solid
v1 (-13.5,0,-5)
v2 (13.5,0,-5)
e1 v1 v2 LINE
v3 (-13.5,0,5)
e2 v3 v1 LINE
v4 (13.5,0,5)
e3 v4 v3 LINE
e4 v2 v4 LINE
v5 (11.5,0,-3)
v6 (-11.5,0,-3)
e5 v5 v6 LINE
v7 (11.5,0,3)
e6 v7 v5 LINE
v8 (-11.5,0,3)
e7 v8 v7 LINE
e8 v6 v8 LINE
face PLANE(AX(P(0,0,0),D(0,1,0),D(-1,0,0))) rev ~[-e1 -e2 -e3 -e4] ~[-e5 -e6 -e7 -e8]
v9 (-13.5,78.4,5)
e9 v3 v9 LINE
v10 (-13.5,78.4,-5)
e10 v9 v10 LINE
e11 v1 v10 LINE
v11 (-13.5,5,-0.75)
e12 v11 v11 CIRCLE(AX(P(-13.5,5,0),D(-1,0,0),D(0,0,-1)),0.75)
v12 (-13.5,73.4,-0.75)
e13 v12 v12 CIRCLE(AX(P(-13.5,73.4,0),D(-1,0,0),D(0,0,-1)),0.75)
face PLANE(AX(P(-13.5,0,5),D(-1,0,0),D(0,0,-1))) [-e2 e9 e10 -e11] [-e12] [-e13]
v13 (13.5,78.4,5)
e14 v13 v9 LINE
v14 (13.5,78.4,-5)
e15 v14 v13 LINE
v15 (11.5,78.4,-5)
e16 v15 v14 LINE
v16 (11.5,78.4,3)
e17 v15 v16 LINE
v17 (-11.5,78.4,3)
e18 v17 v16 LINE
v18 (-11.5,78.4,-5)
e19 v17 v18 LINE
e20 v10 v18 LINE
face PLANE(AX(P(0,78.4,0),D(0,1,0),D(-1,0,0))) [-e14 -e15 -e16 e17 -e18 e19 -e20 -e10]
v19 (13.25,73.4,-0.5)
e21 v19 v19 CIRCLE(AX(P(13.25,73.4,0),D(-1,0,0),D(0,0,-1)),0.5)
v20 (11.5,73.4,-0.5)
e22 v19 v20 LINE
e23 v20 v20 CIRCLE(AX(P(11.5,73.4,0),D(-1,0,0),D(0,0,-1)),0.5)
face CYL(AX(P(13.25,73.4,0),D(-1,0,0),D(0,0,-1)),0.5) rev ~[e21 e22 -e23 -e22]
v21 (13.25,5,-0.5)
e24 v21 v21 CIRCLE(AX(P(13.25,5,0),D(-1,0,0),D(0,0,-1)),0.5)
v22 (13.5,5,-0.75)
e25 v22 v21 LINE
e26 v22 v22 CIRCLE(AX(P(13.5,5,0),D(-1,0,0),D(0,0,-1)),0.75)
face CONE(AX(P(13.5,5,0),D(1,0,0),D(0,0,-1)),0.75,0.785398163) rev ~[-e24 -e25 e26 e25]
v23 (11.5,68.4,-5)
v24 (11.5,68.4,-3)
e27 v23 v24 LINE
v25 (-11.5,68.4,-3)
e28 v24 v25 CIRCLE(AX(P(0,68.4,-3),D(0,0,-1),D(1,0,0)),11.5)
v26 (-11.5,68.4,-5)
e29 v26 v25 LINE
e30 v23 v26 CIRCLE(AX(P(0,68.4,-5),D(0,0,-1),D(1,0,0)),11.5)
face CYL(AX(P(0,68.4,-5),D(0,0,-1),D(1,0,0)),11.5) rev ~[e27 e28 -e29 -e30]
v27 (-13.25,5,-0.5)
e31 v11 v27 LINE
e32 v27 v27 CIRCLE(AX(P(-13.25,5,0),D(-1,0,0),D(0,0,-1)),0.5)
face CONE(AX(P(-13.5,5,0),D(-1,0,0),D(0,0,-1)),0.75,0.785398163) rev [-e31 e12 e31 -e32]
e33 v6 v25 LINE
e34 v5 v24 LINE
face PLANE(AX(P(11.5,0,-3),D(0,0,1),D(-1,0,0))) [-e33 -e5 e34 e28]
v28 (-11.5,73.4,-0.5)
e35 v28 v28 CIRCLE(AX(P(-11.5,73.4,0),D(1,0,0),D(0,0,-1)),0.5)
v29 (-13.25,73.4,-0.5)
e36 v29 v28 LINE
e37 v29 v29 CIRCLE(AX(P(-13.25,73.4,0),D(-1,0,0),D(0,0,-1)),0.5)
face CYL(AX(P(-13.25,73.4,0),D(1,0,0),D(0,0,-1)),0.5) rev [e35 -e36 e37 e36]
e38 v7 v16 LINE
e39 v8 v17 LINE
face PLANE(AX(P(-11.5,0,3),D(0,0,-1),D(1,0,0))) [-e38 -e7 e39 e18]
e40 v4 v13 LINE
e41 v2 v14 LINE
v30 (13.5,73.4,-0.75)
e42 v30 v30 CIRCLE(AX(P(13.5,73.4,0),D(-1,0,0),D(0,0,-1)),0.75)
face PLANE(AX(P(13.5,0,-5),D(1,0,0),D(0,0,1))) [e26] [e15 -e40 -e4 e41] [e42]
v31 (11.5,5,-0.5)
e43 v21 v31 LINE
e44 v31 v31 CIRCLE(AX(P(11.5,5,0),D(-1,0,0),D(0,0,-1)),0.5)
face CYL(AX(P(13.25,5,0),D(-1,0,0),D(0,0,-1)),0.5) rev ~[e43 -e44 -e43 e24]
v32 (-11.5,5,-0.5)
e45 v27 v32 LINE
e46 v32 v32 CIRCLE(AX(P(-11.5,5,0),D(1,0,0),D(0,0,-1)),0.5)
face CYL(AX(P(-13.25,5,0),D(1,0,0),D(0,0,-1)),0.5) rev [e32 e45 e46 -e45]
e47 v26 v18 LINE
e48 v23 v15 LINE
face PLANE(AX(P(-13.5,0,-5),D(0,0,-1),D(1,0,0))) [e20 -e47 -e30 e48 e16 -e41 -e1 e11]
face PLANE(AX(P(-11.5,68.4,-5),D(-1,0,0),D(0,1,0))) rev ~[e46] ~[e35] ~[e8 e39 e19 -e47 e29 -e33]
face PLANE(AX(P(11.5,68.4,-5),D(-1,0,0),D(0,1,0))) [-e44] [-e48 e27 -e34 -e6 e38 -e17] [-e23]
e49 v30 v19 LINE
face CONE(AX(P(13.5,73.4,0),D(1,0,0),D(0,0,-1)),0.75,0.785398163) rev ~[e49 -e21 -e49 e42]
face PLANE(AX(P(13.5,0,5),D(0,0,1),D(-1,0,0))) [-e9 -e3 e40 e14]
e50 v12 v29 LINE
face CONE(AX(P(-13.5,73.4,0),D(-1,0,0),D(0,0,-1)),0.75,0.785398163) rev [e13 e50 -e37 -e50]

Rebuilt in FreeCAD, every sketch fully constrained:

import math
import FreeCAD as App
import Part
import Sketcher
Q = App.Units.Quantity

doc = App.newDocument("Part")
body = doc.addObject("PartDesign::Body", "Body")

sketch1 = body.newObject("Sketcher::SketchObject", "Sketch")
sketch1.AttachmentSupport = (doc.getObject("XZ_Plane"), [""])
sketch1.MapMode = "FlatFace"
sketch1.addGeometry(Part.LineSegment(App.Vector(14, -5, 0), App.Vector(-14, -5, 0)), False)
sketch1.addGeometry(Part.LineSegment(App.Vector(-14, -5, 0), App.Vector(-14, 5, 0)), False)
sketch1.addGeometry(Part.LineSegment(App.Vector(-14, 5, 0), App.Vector(14, 5, 0)), False)
sketch1.addGeometry(Part.LineSegment(App.Vector(14, 5, 0), App.Vector(14, -5, 0)), False)
sketch1.addGeometry(Part.LineSegment(App.Vector(-12, -3, 0), App.Vector(12, -3, 0)), False)
sketch1.addGeometry(Part.LineSegment(App.Vector(12, -3, 0), App.Vector(12, 3, 0)), False)
sketch1.addGeometry(Part.LineSegment(App.Vector(12, 3, 0), App.Vector(-12, 3, 0)), False)
sketch1.addGeometry(Part.LineSegment(App.Vector(-12, 3, 0), App.Vector(-12, -3, 0)), False)
sketch1.addConstraint(Sketcher.Constraint("Coincident", 0, 2, 1, 1))
sketch1.addConstraint(Sketcher.Constraint("Coincident", 1, 2, 2, 1))
sketch1.addConstraint(Sketcher.Constraint("Coincident", 2, 2, 3, 1))
sketch1.addConstraint(Sketcher.Constraint("Coincident", 3, 2, 0, 1))
sketch1.addConstraint(Sketcher.Constraint("Coincident", 4, 2, 5, 1))
sketch1.addConstraint(Sketcher.Constraint("Coincident", 5, 2, 6, 1))
sketch1.addConstraint(Sketcher.Constraint("Coincident", 6, 2, 7, 1))
sketch1.addConstraint(Sketcher.Constraint("Coincident", 7, 2, 4, 1))
sketch1.addConstraint(Sketcher.Constraint("Horizontal", 0))
sketch1.addConstraint(Sketcher.Constraint("Vertical", 1))
sketch1.addConstraint(Sketcher.Constraint("Horizontal", 2))
sketch1.addConstraint(Sketcher.Constraint("Vertical", 3))
sketch1.addConstraint(Sketcher.Constraint("Horizontal", 4))
sketch1.addConstraint(Sketcher.Constraint("Vertical", 5))
sketch1.addConstraint(Sketcher.Constraint("Horizontal", 6))
sketch1.addConstraint(Sketcher.Constraint("Vertical", 7))
sketch1.addConstraint(Sketcher.Constraint("Symmetric", 0, 2, 2, 2, -1, 1))
sketch1.addConstraint(Sketcher.Constraint("Symmetric", 4, 2, 6, 2, -1, 1))
sketch1.addConstraint(Sketcher.Constraint("DistanceX", 0, 2, 0, 1, Q("27 mm")))
sketch1.addConstraint(Sketcher.Constraint("DistanceY", 1, 1, 1, 2, Q("10 mm")))
sketch1.addConstraint(Sketcher.Constraint("DistanceX", 4, 2, 3, 2, Q("2 mm")))
sketch1.addConstraint(Sketcher.Constraint("DistanceY", 3, 2, 4, 2, Q("2 mm")))
pad1 = body.newObject("PartDesign::Pad", "Pad")
pad1.Profile = sketch1
pad1.Length = 78.4
pad1.Reversed = True

sketch2 = body.newObject("Sketcher::SketchObject", "Sketch001")
sketch2.AttachmentSupport = (doc.getObject("XY_Plane"), [""])
sketch2.MapMode = "FlatFace"
sketch2.AttachmentOffset = App.Placement(App.Vector(0, 0, -5), App.Rotation())
sketch2.addGeometry(Part.LineSegment(App.Vector(-12, 78, 0), App.Vector(12, 78, 0)), False)
sketch2.addGeometry(Part.LineSegment(App.Vector(12, 78, 0), App.Vector(12, 68, 0)), False)
sketch2.addGeometry(Part.ArcOfCircle(Part.Circle(App.Vector(0, 68, 0), App.Vector(0, 0, 1), 12), math.radians(180), math.radians(360)), False)
sketch2.addGeometry(Part.LineSegment(App.Vector(-12, 68, 0), App.Vector(-12, 78, 0)), False)
sketch2.addConstraint(Sketcher.Constraint("Coincident", 0, 2, 1, 1))
sketch2.addConstraint(Sketcher.Constraint("Tangent", 1, 2, 2, 2))
sketch2.addConstraint(Sketcher.Constraint("Tangent", 2, 1, 3, 1))
sketch2.addConstraint(Sketcher.Constraint("Coincident", 3, 2, 0, 1))
sketch2.addConstraint(Sketcher.Constraint("Horizontal", 0))
sketch2.addConstraint(Sketcher.Constraint("Vertical", 1))
sketch2.addConstraint(Sketcher.Constraint("Vertical", 3))
sketch2.addConstraint(Sketcher.Constraint("PointOnObject", 2, 3, -2))
sketch2.addConstraint(Sketcher.Constraint("DistanceY", 1, 2, 1, 1, Q("10 mm")))
sketch2.addConstraint(Sketcher.Constraint("Radius", 2, Q("11.5 mm")))
sketch2.addConstraint(Sketcher.Constraint("DistanceY", -1, 1, 2, 3, Q("68.4 mm")))
pocket1 = body.newObject("PartDesign::Pocket", "Pocket")
pocket1.Profile = sketch2
pocket1.Length = 2
pocket1.Reversed = True

sketch3 = body.newObject("Sketcher::SketchObject", "Sketch002")
sketch3.AttachmentSupport = (doc.getObject("YZ_Plane"), [""])
sketch3.MapMode = "FlatFace"
sketch3.AttachmentOffset = App.Placement(App.Vector(0, 0, 13.5), App.Rotation())
sketch3.addGeometry(Part.Circle(App.Vector(73.4, 0, 0), App.Vector(0, 0, 1), 0.5), False)
sketch3.addGeometry(Part.Circle(App.Vector(5, 0, 0), App.Vector(0, 0, 1), 0.5), False)
sketch3.addConstraint(Sketcher.Constraint("Equal", 0, 1))
sketch3.addConstraint(Sketcher.Constraint("PointOnObject", 0, 3, -1))
sketch3.addConstraint(Sketcher.Constraint("PointOnObject", 1, 3, -1))
sketch3.addConstraint(Sketcher.Constraint("Diameter", 0, Q("1 mm")))
sketch3.addConstraint(Sketcher.Constraint("DistanceX", -1, 1, 1, 3, Q("5 mm")))
sketch3.addConstraint(Sketcher.Constraint("DistanceX", -1, 1, 0, 3, Q("73.4 mm")))
doc.recompute()
hole = body.newObject("PartDesign::Hole", "Hole")
hole.Profile = sketch3
hole.ThreadType = "None"
hole.Diameter = 1
hole.DepthType = "Dimension"
hole.Depth = 13.5
hole.DrillPoint = "Flat"
hole.HoleCutType = "Countersink"
hole.HoleCutDiameter = 1.5
hole.HoleCutCountersinkAngle = 90
doc.recompute()

mirrored = body.newObject("PartDesign::Mirrored", "Mirrored")
mirrored.Originals = [hole]
mirrored.MirrorPlane = (doc.getObject("YZ_Plane"), [""])
body.Tip = mirrored

doc.recompute()
